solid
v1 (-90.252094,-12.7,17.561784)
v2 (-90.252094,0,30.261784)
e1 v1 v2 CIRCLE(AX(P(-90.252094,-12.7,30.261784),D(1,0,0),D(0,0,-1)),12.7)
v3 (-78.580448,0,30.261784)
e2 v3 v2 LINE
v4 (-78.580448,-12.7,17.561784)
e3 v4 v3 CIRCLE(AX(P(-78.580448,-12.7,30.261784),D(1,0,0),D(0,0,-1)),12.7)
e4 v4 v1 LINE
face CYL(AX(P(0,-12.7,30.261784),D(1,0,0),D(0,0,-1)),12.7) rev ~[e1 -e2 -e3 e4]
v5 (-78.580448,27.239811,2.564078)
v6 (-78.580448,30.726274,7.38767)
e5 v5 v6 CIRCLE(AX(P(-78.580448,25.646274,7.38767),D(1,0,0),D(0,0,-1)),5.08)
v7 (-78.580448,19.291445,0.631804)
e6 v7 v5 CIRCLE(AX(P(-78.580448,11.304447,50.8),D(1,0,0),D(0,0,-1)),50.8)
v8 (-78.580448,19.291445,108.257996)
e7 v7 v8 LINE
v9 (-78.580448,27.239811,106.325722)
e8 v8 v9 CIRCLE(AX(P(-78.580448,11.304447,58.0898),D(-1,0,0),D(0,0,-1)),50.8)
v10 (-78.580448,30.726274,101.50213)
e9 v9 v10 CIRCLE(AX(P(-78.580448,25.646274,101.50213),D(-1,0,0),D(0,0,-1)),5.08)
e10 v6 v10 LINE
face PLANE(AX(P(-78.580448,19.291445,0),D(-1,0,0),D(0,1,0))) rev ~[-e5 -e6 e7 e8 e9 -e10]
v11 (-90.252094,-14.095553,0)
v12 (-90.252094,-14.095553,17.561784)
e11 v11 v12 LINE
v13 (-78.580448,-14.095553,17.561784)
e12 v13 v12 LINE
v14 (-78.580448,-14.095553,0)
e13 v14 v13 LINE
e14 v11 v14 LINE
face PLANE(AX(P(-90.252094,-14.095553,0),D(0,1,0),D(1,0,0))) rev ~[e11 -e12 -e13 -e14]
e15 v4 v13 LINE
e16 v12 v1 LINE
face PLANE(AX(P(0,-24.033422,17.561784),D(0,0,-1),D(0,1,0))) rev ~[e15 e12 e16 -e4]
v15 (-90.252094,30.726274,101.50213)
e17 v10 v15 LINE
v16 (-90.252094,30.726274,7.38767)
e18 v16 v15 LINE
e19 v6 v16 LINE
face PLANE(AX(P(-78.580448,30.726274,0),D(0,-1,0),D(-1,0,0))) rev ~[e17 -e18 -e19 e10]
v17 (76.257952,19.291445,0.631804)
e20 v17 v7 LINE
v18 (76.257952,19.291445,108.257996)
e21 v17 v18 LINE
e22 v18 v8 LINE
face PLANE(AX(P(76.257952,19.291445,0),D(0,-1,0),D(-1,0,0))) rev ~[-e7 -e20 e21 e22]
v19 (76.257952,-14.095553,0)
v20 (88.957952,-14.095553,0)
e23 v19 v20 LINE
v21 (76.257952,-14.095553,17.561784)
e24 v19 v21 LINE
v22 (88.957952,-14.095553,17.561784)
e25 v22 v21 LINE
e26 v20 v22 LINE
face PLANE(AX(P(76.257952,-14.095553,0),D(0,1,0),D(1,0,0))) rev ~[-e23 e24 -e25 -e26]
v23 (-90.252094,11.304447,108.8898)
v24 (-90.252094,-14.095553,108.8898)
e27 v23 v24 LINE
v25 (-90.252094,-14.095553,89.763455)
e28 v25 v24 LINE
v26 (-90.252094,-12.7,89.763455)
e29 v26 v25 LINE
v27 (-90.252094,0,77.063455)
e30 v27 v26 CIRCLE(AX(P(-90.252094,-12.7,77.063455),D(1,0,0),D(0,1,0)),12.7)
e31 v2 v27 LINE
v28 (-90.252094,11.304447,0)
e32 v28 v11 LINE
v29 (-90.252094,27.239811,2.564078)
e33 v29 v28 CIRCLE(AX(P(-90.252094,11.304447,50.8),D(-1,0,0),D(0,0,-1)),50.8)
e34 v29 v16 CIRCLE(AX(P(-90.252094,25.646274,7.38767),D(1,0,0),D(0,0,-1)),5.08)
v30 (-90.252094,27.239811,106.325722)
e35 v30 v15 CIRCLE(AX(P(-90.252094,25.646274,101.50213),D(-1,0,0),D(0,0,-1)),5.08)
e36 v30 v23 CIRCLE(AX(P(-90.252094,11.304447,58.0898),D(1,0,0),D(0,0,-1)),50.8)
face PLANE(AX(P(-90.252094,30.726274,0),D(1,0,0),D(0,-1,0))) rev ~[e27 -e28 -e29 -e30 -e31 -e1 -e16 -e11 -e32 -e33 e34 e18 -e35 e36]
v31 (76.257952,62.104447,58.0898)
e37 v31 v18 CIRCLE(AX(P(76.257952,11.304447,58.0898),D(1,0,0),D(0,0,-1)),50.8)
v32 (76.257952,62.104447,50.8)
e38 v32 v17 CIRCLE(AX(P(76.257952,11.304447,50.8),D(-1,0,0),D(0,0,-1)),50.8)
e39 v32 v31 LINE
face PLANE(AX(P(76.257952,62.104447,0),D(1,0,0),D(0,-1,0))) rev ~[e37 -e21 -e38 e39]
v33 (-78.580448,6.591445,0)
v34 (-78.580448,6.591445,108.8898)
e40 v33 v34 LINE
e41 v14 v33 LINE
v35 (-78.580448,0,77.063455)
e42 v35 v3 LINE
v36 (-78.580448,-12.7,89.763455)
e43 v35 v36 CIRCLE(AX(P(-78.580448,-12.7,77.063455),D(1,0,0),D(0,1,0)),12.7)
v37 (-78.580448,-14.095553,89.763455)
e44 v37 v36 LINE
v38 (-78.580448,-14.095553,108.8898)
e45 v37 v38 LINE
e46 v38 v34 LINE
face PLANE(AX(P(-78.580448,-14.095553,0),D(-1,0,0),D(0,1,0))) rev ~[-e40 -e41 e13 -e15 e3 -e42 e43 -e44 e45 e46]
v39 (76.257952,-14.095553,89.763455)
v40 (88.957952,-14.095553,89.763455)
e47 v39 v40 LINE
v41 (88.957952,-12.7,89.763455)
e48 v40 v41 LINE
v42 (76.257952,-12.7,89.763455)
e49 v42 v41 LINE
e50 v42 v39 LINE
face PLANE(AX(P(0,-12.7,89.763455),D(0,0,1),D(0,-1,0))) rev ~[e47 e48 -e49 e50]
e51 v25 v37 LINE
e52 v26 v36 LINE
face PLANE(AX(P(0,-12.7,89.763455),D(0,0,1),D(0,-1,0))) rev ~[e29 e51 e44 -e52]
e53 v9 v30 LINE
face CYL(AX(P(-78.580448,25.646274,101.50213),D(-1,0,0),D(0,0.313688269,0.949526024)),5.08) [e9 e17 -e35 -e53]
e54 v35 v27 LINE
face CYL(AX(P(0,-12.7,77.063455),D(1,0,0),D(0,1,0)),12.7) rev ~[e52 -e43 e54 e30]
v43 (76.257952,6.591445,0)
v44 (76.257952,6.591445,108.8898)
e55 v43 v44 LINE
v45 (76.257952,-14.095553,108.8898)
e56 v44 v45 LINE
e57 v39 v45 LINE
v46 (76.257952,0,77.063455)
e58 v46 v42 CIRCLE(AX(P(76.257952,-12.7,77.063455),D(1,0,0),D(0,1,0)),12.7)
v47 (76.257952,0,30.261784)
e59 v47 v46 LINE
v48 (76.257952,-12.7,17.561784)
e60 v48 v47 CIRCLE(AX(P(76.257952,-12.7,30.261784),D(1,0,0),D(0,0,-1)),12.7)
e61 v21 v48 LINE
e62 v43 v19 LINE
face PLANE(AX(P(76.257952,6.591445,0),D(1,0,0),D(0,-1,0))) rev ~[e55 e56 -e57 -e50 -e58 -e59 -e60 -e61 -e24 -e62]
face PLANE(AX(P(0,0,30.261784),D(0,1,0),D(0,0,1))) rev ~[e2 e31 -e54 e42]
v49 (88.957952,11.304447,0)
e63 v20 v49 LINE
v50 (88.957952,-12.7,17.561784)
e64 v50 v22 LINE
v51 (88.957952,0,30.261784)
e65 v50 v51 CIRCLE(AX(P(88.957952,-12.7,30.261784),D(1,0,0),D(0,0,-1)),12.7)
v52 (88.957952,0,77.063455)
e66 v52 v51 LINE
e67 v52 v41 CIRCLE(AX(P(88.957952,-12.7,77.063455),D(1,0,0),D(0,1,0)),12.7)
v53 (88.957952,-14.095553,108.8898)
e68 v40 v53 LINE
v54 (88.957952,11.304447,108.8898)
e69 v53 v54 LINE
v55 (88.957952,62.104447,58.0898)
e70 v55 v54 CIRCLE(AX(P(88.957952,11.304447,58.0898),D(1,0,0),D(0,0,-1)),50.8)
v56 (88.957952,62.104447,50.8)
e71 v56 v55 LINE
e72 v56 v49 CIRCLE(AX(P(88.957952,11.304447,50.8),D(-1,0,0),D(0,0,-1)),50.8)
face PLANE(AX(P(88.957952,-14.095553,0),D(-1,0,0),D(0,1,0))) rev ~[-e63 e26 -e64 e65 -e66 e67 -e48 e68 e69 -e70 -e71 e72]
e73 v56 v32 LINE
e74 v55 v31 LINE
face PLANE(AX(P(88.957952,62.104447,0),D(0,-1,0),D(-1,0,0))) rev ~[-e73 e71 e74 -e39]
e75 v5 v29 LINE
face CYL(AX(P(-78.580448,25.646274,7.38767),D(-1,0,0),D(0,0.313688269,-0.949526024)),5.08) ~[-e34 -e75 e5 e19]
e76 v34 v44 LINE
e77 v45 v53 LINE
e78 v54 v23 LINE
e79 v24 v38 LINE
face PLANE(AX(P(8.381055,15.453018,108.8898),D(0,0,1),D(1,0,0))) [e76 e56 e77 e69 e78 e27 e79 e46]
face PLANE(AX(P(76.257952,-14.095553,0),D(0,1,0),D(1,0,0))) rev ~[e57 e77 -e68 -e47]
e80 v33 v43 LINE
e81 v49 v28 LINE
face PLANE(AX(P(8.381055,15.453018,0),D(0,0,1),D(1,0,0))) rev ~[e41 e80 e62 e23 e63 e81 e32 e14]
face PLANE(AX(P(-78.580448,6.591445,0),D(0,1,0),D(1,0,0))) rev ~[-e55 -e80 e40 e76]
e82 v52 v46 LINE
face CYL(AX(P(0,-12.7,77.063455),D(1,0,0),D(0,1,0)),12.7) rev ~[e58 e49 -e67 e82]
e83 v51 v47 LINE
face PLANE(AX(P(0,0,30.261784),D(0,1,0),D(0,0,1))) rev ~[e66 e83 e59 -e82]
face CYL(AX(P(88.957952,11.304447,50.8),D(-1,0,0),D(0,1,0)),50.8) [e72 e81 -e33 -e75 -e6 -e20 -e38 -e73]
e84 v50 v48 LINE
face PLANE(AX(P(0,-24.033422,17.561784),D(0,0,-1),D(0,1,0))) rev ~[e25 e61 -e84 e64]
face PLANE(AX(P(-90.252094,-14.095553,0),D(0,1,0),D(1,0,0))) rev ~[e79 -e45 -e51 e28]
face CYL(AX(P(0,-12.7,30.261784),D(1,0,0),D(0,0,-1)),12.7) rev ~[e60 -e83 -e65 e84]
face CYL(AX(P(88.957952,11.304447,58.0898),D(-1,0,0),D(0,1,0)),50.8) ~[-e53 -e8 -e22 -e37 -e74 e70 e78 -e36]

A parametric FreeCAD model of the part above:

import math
import FreeCAD as App
import Part
import Sketcher
Q = App.Units.Quantity


def edges_at(feature, points):
    """Names of the edges that pass closest to the given points."""
    edges = feature.Shape.Edges
    near = lambda p: min(range(len(edges)), key=lambda i: edges[i].distToShape(Part.Vertex(*p))[0])
    return sorted({f"Edge{near(p) + 1}" for p in points})


def add_polygon(sketch, points):
    """Adds a closed chain of lines whose ends are joined by coincident constraints."""
    first, n = sketch.GeometryCount, len(points)
    for a, b in zip(points, points[1:] + points[:1]):
        sketch.addGeometry(Part.LineSegment(App.Vector(*a, 0), App.Vector(*b, 0)), False)
    for i in range(n):
        sketch.addConstraint(Sketcher.Constraint("Coincident", first + i, 2, first + (i + 1) % n, 1))

doc = App.newDocument("Part")
params = doc.addObject("Spreadsheet::Sheet", "Params")
for row, (alias, value) in enumerate([
    ("sketch1_height", "3 in"),
    ("sketch1_width", "0.5 in"),
    ("sketch1_width2", "6.096 in"),
    ("pad1_length", "4.287 in"),
    ("fillet_radius", "2 in"),
    ("fillet2_radius", "0.2 in"),
    ("sketch2_radius", "0.5 in"),
    ("pocket1_length", "50 in"),
], start=1):
    params.set(f"A{row}", alias)
    params.set(f"B{row}", "=" + value)
    params.setAlias(f"B{row}", alias)

body = doc.addObject("PartDesign::Body", "Body")

# Sketch on XY plane
sketch1 = body.newObject("Sketcher::SketchObject", "Sketch")
sketch1.AttachmentSupport = (doc.getObject("XY_Plane"), [""])
sketch1.MapMode = "FlatFace"
add_polygon(sketch1, [(76.257952, 19.291445), (-78.580448, 19.291445), (-78.580448, 30.726274), (-90.252094, 30.726274), (-90.252094, -14.095553), (-78.580448, -14.095553), (-78.580448, 6.591445), (76.257952, 6.591445), (76.257952, -14.095553), (88.957952, -14.095553), (88.957952, 62.104447), (76.257952, 62.104447)])  # lines 0-11
sketch1.addConstraint([
    Sketcher.Constraint("Horizontal", 0),
    Sketcher.Constraint("Vertical", 1),
    Sketcher.Constraint("Horizontal", 2),
    Sketcher.Constraint("Vertical", 3),
    Sketcher.Constraint("Horizontal", 4),
    Sketcher.Constraint("Vertical", 5),
    Sketcher.Constraint("Horizontal", 6),
    Sketcher.Constraint("Vertical", 7),
    Sketcher.Constraint("Horizontal", 8),
    Sketcher.Constraint("Vertical", 9),
    Sketcher.Constraint("Horizontal", 10),
    Sketcher.Constraint("Vertical", 11),
    Sketcher.Constraint("Horizontal", 4, 2, 7, 2),
    Sketcher.Constraint("Vertical", 1, 2, 4, 2),
    Sketcher.Constraint("Vertical", 7, 2, 10, 2),
    Sketcher.Constraint("DistanceY", 9, 1, 9, 2, Q("3 in")),
    Sketcher.Constraint("DistanceX", 8, 1, 8, 2, Q("0.5 in")),
    Sketcher.Constraint("DistanceY", 5, 2, 0, 2, Q("0.5 in")),
    Sketcher.Constraint("DistanceX", 0, 2, 0, 1, Q("6.096 in")),
    Sketcher.Constraint("DistanceY", 5, 1, 5, 2, Q("20.686998 mm")),
    Sketcher.Constraint("DistanceY", 1, 1, 1, 2, Q("11.43483 mm")),
    Sketcher.Constraint("DistanceX", 2, 2, 2, 1, Q("11.671646 mm")),
    Sketcher.Constraint("DistanceX", 0, 2, -1, 1, Q("78.580448 mm")),
    Sketcher.Constraint("DistanceY", -1, 1, 0, 2, Q("19.291445 mm")),
])
sketch1.setExpression("Constraints[27]", "Params.sketch1_height")
sketch1.setExpression("Constraints[28]", "Params.sketch1_width")
sketch1.setExpression("Constraints[30]", "Params.sketch1_width2")
pad1 = body.newObject("PartDesign::Pad", "Pad")
pad1.Profile = sketch1
pad1.setExpression("Length", "Params.pad1_length")
doc.recompute()

fillet = body.newObject("PartDesign::Fillet", "Fillet")
fillet.Base = (pad1, edges_at(pad1, [(82.608, 62.104, 108.89), (82.608, 62.104, 0)]))
fillet.setExpression("Radius", "Params.fillet_radius")
doc.recompute()

fillet2 = body.newObject("PartDesign::Fillet", "Fillet001")
fillet2.Base = (fillet, edges_at(fillet, [(-84.416, 30.726, 105.031), (-84.416, 30.726, 3.859)]))
fillet2.setExpression("Radius", "Params.fillet2_radius")

# Sketch on YZ plane
sketch2 = body.newObject("Sketcher::SketchObject", "Sketch001")
sketch2.AttachmentSupport = (doc.getObject("YZ_Plane"), [""])
sketch2.MapMode = "FlatFace"
sketch2.addGeometry([
    Part.ArcOfCircle(Part.Circle(App.Vector(-12.7, 77.063455, 0), App.Vector(0, 0, 1), 12.7), math.radians(0), math.radians(90)),  # 0
    Part.LineSegment(App.Vector(-12.7, 89.763455, 0), App.Vector(-24.033422, 89.763455, 0)),  # 1
    Part.LineSegment(App.Vector(-24.033422, 89.763455, 0), App.Vector(-24.033422, 17.561784, 0)),  # 2
    Part.LineSegment(App.Vector(-24.033422, 17.561784, 0), App.Vector(-12.7, 17.561784, 0)),  # 3
    Part.ArcOfCircle(Part.Circle(App.Vector(-12.7, 30.261784, 0), App.Vector(0, 0, 1), 12.7), math.radians(-90), math.radians(0)),  # 4
    Part.LineSegment(App.Vector(0, 30.261784, 0), App.Vector(0, 77.063455, 0)),  # 5
], False)
sketch2.addConstraint([
    Sketcher.Constraint("Tangent", 0, 2, 1, 1),
    Sketcher.Constraint("Coincident", 1, 2, 2, 1),
    Sketcher.Constraint("Coincident", 2, 2, 3, 1),
    Sketcher.Constraint("Tangent", 3, 2, 4, 1),
    Sketcher.Constraint("Tangent", 4, 2, 5, 1),
    Sketcher.Constraint("Tangent", 5, 2, 0, 1),
    Sketcher.Constraint("Horizontal", 1),
    Sketcher.Constraint("Vertical", 2),
    Sketcher.Constraint("Horizontal", 3),
    Sketcher.Constraint("Vertical", 5),
    Sketcher.Constraint("Equal", 0, 4),
    Sketcher.Constraint("PointOnObject", 4, 2, -2),
    Sketcher.Constraint("Radius", 0, Q("0.5 in")),
    Sketcher.Constraint("DistanceX", 1, 2, 1, 1, Q("11.333422 mm")),
    Sketcher.Constraint("DistanceY", 2, 2, 2, 1, Q("72.201671 mm")),
    Sketcher.Constraint("DistanceY", -1, 1, 0, 3, Q("77.063455 mm")),
])
sketch2.setExpression("Constraints[12]", "Params.sketch2_radius")
pocket1 = body.newObject("PartDesign::Pocket", "Pocket")
pocket1.Profile = sketch2
pocket1.setExpression("Length", "Params.pocket1_length")
pocket1.Midplane = True

doc.recompute()
